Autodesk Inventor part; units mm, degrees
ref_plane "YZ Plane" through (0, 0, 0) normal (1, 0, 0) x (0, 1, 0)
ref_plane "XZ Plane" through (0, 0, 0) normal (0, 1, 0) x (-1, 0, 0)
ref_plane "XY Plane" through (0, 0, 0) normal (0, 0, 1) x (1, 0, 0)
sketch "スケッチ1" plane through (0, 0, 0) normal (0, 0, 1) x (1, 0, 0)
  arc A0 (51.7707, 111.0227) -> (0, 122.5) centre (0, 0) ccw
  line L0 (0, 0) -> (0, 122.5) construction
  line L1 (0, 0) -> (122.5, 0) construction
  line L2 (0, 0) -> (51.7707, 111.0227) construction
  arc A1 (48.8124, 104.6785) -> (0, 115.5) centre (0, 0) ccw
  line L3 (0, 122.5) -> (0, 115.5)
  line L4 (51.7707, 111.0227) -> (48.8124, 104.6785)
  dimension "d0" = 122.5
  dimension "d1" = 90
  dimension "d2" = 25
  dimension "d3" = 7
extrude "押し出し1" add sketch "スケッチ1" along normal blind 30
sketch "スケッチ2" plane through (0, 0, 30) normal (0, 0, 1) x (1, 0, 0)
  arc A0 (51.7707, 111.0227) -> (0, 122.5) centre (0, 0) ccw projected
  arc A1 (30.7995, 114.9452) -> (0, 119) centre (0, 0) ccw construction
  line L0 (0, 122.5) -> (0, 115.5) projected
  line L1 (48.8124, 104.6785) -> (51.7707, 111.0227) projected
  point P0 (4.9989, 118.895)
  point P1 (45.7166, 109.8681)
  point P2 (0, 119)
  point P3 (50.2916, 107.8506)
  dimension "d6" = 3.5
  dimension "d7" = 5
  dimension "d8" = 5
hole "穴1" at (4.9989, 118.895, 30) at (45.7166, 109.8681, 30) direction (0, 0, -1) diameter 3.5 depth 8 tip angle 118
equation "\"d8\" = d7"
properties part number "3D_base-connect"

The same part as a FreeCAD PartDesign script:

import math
import FreeCAD as App
import Part
import Sketcher

V = App.Vector
Q = App.Units.Quantity

doc = App.newDocument("Part")
body = doc.addObject("PartDesign::Body", "Body")

# Sketch on XY plane
sketch1 = body.newObject("Sketcher::SketchObject", "Sketch")
sketch1.AttachmentSupport = (doc.getObject("XY_Plane"), [""])
sketch1.MapMode = "FlatFace"
sketch1.addGeometry([
    Part.LineSegment(V(48.8124, 104.6785, 0), V(51.7707, 111.0227, 0)),
    Part.ArcOfCircle(Part.Circle(V(0, 0, 0), V(0, 0, 1), 122.499981), math.radians(65.000015), math.radians(90)),
    Part.LineSegment(V(0, 122.5, 0), V(0, 115.5, 0)),
    Part.ArcOfCircle(Part.Circle(V(-0.000332, -0.000978, 0), V(0, 0, 1), 115.500978), math.radians(65.00005), math.radians(89.999835)),
], False)
sketch1.addConstraint([
    Sketcher.Constraint("Coincident", 0, 2, 1, 1),
    Sketcher.Constraint("Coincident", 1, 2, 2, 1),
    Sketcher.Constraint("Coincident", 2, 2, 3, 2),
    Sketcher.Constraint("Coincident", 3, 1, 0, 1),
    Sketcher.Constraint("Vertical", 2),
    Sketcher.Constraint("Coincident", 1, 3, -1, 1),
    Sketcher.Constraint("PointOnObject", 1, 2, -2),
    Sketcher.Constraint("Radius", 1, Q("122.5 mm")),
    Sketcher.Constraint("DistanceY", 2, 2, 2, 1, Q("7 mm")),
    Sketcher.Constraint("Distance", 0, Q("7 mm")),
    Sketcher.Constraint("Angle", 0, Q("65.0004 deg")),
    Sketcher.Constraint("Radius", 3, Q("115.501 mm")),
    Sketcher.Constraint("DistanceX", 3, 3, 0, 2, Q("51.771 mm")),
])
pad1 = body.newObject("PartDesign::Pad", "Pad")
pad1.Profile = sketch1
pad1.Length = 30

# Sketch on XY plane
sketch2 = body.newObject("Sketcher::SketchObject", "Sketch001")
sketch2.AttachmentSupport = (doc.getObject("XY_Plane"), [""])
sketch2.MapMode = "FlatFace"
sketch2.AttachmentOffset = App.Placement(V(0, 0, 30), App.Rotation())
sketch2.addGeometry([
    Part.Circle(V(4.9989, 118.895, 0), V(0, 0, 1), 1.75),
    Part.Circle(V(45.7166, 109.8681, 0), V(0, 0, 1), 1.75),
], False)
sketch2.addConstraint([
    Sketcher.Constraint("Equal", 0, 1),
    Sketcher.Constraint("Diameter", 0, Q("3.5 mm")),
    Sketcher.Constraint("DistanceX", -1, 1, 0, 3, Q("4.999 mm")),
    Sketcher.Constraint("DistanceY", -1, 1, 0, 3, Q("118.895 mm")),
    Sketcher.Constraint("DistanceY", -1, 1, 1, 3, Q("109.868 mm")),
    Sketcher.Constraint("DistanceX", -1, 1, 1, 3, Q("45.7166 mm")),
])
doc.recompute()
hole = body.newObject("PartDesign::Hole", "Hole")
hole.Profile = sketch2
hole.ThreadType = "None"
hole.Diameter = 3.5
hole.DepthType = "Dimension"
hole.Depth = 8
hole.DrillPoint = "Angled"
hole.DrillPointAngle = 118

doc.recompute()
